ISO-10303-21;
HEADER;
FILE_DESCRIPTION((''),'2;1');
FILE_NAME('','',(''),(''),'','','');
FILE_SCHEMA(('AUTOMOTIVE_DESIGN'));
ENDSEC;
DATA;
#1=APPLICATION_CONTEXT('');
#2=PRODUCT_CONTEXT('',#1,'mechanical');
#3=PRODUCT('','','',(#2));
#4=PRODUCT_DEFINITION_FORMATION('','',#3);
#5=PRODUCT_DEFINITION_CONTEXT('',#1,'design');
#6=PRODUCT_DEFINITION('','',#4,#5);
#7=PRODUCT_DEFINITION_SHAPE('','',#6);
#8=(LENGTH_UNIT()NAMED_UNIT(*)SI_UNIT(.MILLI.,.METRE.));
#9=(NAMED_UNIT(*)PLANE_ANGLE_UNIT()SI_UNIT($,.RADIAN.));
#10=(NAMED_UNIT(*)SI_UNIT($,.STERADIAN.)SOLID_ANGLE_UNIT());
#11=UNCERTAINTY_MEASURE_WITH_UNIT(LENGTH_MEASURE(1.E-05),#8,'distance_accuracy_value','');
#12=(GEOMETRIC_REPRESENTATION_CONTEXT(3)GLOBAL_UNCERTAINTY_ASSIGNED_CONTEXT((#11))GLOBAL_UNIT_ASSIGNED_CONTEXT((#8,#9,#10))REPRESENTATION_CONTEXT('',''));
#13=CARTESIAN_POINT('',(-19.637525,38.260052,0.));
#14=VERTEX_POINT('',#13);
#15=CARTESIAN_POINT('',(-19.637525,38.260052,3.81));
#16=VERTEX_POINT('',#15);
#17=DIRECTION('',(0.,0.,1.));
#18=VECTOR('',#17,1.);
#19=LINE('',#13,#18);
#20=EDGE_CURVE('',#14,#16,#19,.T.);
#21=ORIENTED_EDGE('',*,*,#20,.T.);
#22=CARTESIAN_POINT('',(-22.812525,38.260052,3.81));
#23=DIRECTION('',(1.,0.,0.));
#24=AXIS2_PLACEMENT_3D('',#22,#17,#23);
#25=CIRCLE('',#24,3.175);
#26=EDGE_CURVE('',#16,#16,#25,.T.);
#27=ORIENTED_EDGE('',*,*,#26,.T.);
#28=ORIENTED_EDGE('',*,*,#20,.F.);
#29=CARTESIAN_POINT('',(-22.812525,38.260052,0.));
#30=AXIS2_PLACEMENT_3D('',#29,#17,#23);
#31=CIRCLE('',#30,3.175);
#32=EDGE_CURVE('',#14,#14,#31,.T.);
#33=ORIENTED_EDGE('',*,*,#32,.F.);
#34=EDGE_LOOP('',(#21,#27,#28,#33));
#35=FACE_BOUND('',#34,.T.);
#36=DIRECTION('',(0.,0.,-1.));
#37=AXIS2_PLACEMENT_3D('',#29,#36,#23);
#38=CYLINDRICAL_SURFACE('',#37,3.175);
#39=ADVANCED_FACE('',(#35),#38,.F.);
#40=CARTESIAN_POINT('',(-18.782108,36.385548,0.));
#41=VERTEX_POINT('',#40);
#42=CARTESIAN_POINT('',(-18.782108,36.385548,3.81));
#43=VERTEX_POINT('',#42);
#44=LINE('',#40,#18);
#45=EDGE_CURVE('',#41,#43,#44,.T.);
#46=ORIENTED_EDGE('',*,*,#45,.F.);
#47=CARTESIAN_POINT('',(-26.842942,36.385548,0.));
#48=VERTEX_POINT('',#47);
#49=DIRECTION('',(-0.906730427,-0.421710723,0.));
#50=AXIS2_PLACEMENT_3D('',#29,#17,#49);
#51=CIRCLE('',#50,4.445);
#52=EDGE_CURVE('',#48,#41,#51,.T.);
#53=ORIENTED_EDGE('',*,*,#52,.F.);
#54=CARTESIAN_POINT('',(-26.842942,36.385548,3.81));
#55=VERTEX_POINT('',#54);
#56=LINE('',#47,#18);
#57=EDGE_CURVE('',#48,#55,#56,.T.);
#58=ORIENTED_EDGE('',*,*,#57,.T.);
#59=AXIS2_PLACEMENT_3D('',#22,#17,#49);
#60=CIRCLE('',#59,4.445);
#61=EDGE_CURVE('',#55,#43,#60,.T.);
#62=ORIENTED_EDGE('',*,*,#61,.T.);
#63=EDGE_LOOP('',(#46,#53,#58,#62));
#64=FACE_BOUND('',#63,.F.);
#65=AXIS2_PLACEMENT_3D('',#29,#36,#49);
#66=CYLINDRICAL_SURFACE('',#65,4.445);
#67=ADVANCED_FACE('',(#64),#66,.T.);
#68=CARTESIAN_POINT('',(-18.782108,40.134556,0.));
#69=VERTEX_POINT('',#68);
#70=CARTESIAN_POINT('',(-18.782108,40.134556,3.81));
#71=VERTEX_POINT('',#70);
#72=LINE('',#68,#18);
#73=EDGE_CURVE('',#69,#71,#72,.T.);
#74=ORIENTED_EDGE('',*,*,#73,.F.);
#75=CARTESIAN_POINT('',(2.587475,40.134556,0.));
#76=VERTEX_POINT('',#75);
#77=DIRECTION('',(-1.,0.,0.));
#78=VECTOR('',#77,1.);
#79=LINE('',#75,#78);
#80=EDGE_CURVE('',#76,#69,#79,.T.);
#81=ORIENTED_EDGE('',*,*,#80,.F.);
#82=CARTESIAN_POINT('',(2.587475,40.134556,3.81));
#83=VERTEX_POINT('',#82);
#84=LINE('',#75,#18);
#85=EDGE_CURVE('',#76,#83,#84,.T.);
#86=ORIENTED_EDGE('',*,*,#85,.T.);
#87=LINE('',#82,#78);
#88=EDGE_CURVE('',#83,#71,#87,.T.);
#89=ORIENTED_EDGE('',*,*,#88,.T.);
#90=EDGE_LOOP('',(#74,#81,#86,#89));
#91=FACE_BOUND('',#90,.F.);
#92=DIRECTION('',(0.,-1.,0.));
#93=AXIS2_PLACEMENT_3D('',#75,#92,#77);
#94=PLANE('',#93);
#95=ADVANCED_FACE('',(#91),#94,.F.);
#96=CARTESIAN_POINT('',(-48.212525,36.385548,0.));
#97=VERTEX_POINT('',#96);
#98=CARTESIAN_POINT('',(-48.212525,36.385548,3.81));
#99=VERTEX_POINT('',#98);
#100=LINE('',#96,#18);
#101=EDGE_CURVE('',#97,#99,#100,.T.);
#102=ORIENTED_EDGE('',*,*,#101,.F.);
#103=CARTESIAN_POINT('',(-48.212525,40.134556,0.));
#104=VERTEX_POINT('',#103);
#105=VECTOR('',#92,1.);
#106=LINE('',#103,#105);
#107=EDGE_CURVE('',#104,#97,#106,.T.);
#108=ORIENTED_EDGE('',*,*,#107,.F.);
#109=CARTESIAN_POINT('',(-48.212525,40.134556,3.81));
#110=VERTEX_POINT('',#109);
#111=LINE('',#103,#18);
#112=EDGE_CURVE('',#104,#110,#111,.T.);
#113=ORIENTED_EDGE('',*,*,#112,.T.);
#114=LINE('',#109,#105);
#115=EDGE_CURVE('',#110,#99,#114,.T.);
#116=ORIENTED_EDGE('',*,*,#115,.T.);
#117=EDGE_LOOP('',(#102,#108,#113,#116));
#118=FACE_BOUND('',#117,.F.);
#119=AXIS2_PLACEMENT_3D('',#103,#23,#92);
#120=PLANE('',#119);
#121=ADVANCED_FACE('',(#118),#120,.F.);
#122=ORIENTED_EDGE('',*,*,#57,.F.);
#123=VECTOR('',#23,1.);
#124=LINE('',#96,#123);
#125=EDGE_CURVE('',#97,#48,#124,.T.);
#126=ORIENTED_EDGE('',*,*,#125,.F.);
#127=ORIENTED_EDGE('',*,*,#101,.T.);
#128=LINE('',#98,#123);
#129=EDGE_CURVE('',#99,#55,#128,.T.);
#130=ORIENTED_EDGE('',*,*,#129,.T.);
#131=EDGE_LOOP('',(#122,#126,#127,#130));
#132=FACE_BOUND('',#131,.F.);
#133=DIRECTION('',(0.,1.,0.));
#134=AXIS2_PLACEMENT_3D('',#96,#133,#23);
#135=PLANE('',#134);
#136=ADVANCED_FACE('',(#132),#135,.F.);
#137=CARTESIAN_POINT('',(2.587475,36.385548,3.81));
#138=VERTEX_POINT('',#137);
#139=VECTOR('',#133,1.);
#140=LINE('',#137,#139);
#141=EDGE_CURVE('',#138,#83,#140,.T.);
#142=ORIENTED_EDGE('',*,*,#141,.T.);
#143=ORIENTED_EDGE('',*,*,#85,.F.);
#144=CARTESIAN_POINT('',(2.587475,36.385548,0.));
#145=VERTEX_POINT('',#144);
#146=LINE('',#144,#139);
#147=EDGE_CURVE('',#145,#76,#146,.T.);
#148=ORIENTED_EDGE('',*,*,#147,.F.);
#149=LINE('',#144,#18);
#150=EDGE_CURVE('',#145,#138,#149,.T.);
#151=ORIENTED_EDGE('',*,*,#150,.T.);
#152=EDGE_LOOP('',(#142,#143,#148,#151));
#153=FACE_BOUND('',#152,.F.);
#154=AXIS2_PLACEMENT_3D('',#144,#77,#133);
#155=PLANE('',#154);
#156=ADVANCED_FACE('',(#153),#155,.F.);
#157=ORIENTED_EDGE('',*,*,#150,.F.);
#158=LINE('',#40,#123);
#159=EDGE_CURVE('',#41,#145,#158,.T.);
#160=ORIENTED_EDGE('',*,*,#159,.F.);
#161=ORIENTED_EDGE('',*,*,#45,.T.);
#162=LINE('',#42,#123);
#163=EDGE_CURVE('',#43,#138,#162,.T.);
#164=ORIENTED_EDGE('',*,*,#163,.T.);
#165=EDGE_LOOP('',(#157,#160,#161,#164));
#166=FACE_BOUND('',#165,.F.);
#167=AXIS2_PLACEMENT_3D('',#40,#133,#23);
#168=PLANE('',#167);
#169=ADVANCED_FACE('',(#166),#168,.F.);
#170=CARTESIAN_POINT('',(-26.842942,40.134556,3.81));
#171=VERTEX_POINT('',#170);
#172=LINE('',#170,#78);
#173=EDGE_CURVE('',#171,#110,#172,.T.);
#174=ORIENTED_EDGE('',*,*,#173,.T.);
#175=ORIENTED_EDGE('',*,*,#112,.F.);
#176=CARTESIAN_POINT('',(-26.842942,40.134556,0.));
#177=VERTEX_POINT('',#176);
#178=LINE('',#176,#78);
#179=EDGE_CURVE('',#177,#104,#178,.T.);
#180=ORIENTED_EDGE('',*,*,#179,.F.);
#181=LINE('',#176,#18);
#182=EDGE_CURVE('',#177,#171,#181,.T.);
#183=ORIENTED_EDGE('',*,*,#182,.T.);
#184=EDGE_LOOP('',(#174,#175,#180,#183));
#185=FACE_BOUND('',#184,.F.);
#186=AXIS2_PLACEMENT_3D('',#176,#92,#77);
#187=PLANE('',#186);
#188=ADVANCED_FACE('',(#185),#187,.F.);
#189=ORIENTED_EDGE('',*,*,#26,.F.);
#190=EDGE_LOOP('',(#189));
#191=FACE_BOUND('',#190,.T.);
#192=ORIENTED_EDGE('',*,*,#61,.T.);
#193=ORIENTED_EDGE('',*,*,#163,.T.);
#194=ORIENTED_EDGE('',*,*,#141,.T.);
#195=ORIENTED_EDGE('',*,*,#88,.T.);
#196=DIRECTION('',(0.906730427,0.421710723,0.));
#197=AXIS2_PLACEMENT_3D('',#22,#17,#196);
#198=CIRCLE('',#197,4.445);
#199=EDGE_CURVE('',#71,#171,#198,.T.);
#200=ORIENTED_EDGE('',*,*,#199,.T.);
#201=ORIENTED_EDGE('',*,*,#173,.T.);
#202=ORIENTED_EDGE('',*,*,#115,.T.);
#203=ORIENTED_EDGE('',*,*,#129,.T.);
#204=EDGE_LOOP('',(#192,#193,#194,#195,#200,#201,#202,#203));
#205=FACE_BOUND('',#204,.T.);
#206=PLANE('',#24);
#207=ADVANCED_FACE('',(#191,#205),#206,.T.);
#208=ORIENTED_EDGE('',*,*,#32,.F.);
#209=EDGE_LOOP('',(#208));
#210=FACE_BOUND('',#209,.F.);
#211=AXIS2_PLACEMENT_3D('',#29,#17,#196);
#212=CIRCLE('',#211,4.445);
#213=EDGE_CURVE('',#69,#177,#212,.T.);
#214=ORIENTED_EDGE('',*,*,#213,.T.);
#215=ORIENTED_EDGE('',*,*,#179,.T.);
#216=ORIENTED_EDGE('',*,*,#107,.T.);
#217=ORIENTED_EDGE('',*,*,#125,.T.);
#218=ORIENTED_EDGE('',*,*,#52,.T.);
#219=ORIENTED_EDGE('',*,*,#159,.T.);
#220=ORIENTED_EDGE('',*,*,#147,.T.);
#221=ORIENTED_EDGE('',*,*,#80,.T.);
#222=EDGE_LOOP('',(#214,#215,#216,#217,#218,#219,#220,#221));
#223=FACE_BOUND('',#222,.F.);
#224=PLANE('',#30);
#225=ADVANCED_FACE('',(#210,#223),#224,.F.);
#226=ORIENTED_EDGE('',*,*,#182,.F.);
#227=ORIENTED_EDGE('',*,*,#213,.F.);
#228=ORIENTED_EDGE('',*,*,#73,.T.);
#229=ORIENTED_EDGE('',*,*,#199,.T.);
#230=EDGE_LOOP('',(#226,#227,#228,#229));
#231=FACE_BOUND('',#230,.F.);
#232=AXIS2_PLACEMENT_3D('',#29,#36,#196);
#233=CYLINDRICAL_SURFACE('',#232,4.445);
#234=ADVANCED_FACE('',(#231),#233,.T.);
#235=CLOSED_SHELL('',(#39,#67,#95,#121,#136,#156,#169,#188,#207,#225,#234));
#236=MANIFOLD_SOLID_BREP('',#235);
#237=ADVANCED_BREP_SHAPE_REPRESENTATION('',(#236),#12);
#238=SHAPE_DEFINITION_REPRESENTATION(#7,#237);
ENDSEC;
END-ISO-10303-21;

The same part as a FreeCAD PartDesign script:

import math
import FreeCAD as App
import Part
import Sketcher

V = App.Vector
Q = App.Units.Quantity

doc = App.newDocument("Part")
body = doc.addObject("PartDesign::Body", "Body")

# Sketch on XY plane
sketch1 = doc.addObject("Sketcher::SketchObject", "Sketch")
body.addObject(sketch1)
sketch1.AttachmentSupport = (doc.XY_Plane, [""])
sketch1.MapMode = "FlatFace"
sketch1.addGeometry([
    Part.LineSegment(V(-18.782108, 36.385548, 0), V(2.587475, 36.385548, 0)),  # 0
    Part.LineSegment(V(2.587475, 36.385548, 0), V(2.587475, 40.134556, 0)),  # 1
    Part.LineSegment(V(2.587475, 40.134556, 0), V(-18.782108, 40.134556, 0)),  # 2
    Part.ArcOfCircle(Part.Circle(V(-22.812525, 38.260052, 0), V(0, 0, 1), 4.445), math.radians(24.94264), math.radians(155.05736)),  # 3
    Part.LineSegment(V(-26.842942, 40.134556, 0), V(-48.212525, 40.134556, 0)),  # 4
    Part.LineSegment(V(-48.212525, 40.134556, 0), V(-48.212525, 36.385548, 0)),  # 5
    Part.LineSegment(V(-48.212525, 36.385548, 0), V(-26.842942, 36.385548, 0)),  # 6
    Part.ArcOfCircle(Part.Circle(V(-22.812525, 38.260052, 0), V(0, 0, 1), 4.445), math.radians(-155.05736), math.radians(-24.94264)),  # 7
    Part.Circle(V(-22.812525, 38.260052, 0), V(0, 0, 1), 3.175),  # 8
], False)
sketch1.addConstraint([
    Sketcher.Constraint("Coincident", 0, 2, 1, 1),
    Sketcher.Constraint("Coincident", 1, 2, 2, 1),
    Sketcher.Constraint("Coincident", 2, 2, 3, 1),
    Sketcher.Constraint("Coincident", 3, 2, 4, 1),
    Sketcher.Constraint("Coincident", 4, 2, 5, 1),
    Sketcher.Constraint("Coincident", 5, 2, 6, 1),
    Sketcher.Constraint("Coincident", 6, 2, 7, 1),
    Sketcher.Constraint("Coincident", 7, 2, 0, 1),
    Sketcher.Constraint("Horizontal", 0),
    Sketcher.Constraint("Vertical", 1),
    Sketcher.Constraint("Horizontal", 2),
    Sketcher.Constraint("Horizontal", 4),
    Sketcher.Constraint("Vertical", 5),
    Sketcher.Constraint("Horizontal", 6),
    Sketcher.Constraint("Coincident", 7, 3, 3, 3),
    Sketcher.Constraint("Coincident", 8, 3, 3, 3),
    Sketcher.Constraint("Equal", 3, 7),
    Sketcher.Constraint("Horizontal", 2, 2, 3, 2),
    Sketcher.Constraint("Horizontal", 0, 2, 5, 2),
    Sketcher.Constraint("Vertical", 3, 2, 6, 2),
    Sketcher.Constraint("Equal", 2, 4),
    Sketcher.Constraint("Diameter", 8, Q("0.25 in")),
    Sketcher.Constraint("Radius", 3, Q("0.175 in")),
    Sketcher.Constraint("DistanceX", 3, 3, 0, 2, Q("1 in")),
    Sketcher.Constraint("DistanceY", 1, 1, 1, 2, Q("3.749008 mm")),
    Sketcher.Constraint("DistanceY", -1, 1, 3, 3, Q("38.260052 mm")),
    Sketcher.Constraint("DistanceX", 2, 2, -1, 1, Q("18.782108 mm")),
])
pad1 = doc.addObject("PartDesign::Pad", "Pad")
body.addObject(pad1)
pad1.Profile = sketch1
pad1.Length = Q("0.15 in")

doc.recompute()
